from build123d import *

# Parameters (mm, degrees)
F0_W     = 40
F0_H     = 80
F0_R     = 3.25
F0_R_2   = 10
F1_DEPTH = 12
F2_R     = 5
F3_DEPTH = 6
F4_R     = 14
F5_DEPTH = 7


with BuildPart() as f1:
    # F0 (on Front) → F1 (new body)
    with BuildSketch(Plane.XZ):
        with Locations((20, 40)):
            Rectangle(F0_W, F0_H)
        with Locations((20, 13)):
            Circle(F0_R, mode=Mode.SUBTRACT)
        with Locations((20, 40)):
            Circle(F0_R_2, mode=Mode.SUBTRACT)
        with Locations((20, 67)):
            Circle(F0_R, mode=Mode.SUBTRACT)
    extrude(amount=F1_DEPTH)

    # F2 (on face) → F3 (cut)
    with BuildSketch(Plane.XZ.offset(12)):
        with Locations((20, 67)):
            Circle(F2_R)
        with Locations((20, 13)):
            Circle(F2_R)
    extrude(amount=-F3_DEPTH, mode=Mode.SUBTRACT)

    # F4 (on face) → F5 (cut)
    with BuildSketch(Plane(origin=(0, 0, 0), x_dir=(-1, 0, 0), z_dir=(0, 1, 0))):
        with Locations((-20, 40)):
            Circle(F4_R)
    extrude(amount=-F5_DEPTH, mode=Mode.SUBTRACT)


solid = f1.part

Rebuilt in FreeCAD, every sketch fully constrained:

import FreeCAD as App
import Part
import Sketcher

V = App.Vector
Q = App.Units.Quantity


def add_polygon(sketch, points):
    """Adds a closed chain of lines whose ends are joined by coincident constraints."""
    first, n = sketch.GeometryCount, len(points)
    for a, b in zip(points, points[1:] + points[:1]):
        sketch.addGeometry(Part.LineSegment(App.Vector(*a, 0), App.Vector(*b, 0)), False)
    for i in range(n):
        sketch.addConstraint(Sketcher.Constraint("Coincident", first + i, 2, first + (i + 1) % n, 1))

doc = App.newDocument("Part")
body = doc.addObject("PartDesign::Body", "Body")

sketch1 = body.newObject("Sketcher::SketchObject", "Sketch")
sketch1.AttachmentSupport = (doc.getObject("XZ_Plane"), [""])
sketch1.MapMode = "FlatFace"
add_polygon(sketch1, [(0, 80), (0, 0), (40, 0), (40, 80)])
sketch1.addGeometry(Part.Circle(V(20, 13, 0), V(0, 0, 1), 3.2), False)
sketch1.addGeometry(Part.Circle(V(20, 40, 0), V(0, 0, 1), 10), False)
sketch1.addGeometry(Part.Circle(V(20, 67, 0), V(0, 0, 1), 3.2), False)
sketch1.addConstraint(Sketcher.Constraint("Vertical", 0))
sketch1.addConstraint(Sketcher.Constraint("Horizontal", 1))
sketch1.addConstraint(Sketcher.Constraint("Vertical", 2))
sketch1.addConstraint(Sketcher.Constraint("Horizontal", 3))
sketch1.addConstraint(Sketcher.Constraint("Coincident", 0, 2, -1, 1))
sketch1.addConstraint(Sketcher.Constraint("Equal", 4, 6))
sketch1.addConstraint(Sketcher.Constraint("Vertical", 4, 3, 5, 3))
sketch1.addConstraint(Sketcher.Constraint("Vertical", 5, 3, 6, 3))
sketch1.addConstraint(Sketcher.Constraint("Diameter", 5, Q("20 mm")))
sketch1.addConstraint(Sketcher.Constraint("Diameter", 4, Q("6.5 mm")))
sketch1.addConstraint(Sketcher.Constraint("DistanceX", 1, 1, 1, 2, Q("40 mm")))
sketch1.addConstraint(Sketcher.Constraint("DistanceY", 0, 2, 0, 1, Q("80 mm")))
sketch1.addConstraint(Sketcher.Constraint("DistanceX", -1, 1, 4, 3, Q("20 mm")))
sketch1.addConstraint(Sketcher.Constraint("DistanceY", -1, 1, 4, 3, Q("13 mm")))
sketch1.addConstraint(Sketcher.Constraint("DistanceY", -1, 1, 5, 3, Q("40 mm")))
sketch1.addConstraint(Sketcher.Constraint("DistanceY", -1, 1, 6, 3, Q("67 mm")))
pad1 = body.newObject("PartDesign::Pad", "Pad")
pad1.Profile = sketch1
pad1.Length = 12

sketch2 = body.newObject("Sketcher::SketchObject", "Sketch001")
sketch2.AttachmentSupport = (doc.getObject("XZ_Plane"), [""])
sketch2.MapMode = "FlatFace"
sketch2.AttachmentOffset = App.Placement(V(0, 0, 12), App.Rotation())
sketch2.addGeometry(Part.Circle(V(20, 67, 0), V(0, 0, 1), 5), False)
sketch2.addGeometry(Part.Circle(V(20, 13, 0), V(0, 0, 1), 5), False)
sketch2.addConstraint(Sketcher.Constraint("Equal", 0, 1))
sketch2.addConstraint(Sketcher.Constraint("Vertical", 0, 3, 1, 3))
sketch2.addConstraint(Sketcher.Constraint("Diameter", 0, Q("10 mm")))
sketch2.addConstraint(Sketcher.Constraint("DistanceX", -1, 1, 0, 3, Q("20 mm")))
sketch2.addConstraint(Sketcher.Constraint("DistanceY", -1, 1, 0, 3, Q("67 mm")))
sketch2.addConstraint(Sketcher.Constraint("DistanceY", -1, 1, 1, 3, Q("13 mm")))
pocket1 = body.newObject("PartDesign::Pocket", "Pocket")
pocket1.Profile = sketch2
pocket1.Length = 6

sketch3 = body.newObject("Sketcher::SketchObject", "Sketch002")
sketch3.AttachmentSupport = (doc.getObject("XZ_Plane"), [""])
sketch3.MapMode = "FlatFace"
sketch3.addGeometry(Part.Circle(V(20, 40, 0), V(0, 0, 1), 14), False)
sketch3.addConstraint(Sketcher.Constraint("Diameter", 0, Q("28 mm")))
sketch3.addConstraint(Sketcher.Constraint("DistanceX", -1, 1, 0, 3, Q("20 mm")))
sketch3.addConstraint(Sketcher.Constraint("DistanceY", -1, 1, 0, 3, Q("40 mm")))
pocket2 = body.newObject("PartDesign::Pocket", "Pocket001")
pocket2.Profile = sketch3
pocket2.Length = 7
pocket2.Reversed = True

doc.recompute()
